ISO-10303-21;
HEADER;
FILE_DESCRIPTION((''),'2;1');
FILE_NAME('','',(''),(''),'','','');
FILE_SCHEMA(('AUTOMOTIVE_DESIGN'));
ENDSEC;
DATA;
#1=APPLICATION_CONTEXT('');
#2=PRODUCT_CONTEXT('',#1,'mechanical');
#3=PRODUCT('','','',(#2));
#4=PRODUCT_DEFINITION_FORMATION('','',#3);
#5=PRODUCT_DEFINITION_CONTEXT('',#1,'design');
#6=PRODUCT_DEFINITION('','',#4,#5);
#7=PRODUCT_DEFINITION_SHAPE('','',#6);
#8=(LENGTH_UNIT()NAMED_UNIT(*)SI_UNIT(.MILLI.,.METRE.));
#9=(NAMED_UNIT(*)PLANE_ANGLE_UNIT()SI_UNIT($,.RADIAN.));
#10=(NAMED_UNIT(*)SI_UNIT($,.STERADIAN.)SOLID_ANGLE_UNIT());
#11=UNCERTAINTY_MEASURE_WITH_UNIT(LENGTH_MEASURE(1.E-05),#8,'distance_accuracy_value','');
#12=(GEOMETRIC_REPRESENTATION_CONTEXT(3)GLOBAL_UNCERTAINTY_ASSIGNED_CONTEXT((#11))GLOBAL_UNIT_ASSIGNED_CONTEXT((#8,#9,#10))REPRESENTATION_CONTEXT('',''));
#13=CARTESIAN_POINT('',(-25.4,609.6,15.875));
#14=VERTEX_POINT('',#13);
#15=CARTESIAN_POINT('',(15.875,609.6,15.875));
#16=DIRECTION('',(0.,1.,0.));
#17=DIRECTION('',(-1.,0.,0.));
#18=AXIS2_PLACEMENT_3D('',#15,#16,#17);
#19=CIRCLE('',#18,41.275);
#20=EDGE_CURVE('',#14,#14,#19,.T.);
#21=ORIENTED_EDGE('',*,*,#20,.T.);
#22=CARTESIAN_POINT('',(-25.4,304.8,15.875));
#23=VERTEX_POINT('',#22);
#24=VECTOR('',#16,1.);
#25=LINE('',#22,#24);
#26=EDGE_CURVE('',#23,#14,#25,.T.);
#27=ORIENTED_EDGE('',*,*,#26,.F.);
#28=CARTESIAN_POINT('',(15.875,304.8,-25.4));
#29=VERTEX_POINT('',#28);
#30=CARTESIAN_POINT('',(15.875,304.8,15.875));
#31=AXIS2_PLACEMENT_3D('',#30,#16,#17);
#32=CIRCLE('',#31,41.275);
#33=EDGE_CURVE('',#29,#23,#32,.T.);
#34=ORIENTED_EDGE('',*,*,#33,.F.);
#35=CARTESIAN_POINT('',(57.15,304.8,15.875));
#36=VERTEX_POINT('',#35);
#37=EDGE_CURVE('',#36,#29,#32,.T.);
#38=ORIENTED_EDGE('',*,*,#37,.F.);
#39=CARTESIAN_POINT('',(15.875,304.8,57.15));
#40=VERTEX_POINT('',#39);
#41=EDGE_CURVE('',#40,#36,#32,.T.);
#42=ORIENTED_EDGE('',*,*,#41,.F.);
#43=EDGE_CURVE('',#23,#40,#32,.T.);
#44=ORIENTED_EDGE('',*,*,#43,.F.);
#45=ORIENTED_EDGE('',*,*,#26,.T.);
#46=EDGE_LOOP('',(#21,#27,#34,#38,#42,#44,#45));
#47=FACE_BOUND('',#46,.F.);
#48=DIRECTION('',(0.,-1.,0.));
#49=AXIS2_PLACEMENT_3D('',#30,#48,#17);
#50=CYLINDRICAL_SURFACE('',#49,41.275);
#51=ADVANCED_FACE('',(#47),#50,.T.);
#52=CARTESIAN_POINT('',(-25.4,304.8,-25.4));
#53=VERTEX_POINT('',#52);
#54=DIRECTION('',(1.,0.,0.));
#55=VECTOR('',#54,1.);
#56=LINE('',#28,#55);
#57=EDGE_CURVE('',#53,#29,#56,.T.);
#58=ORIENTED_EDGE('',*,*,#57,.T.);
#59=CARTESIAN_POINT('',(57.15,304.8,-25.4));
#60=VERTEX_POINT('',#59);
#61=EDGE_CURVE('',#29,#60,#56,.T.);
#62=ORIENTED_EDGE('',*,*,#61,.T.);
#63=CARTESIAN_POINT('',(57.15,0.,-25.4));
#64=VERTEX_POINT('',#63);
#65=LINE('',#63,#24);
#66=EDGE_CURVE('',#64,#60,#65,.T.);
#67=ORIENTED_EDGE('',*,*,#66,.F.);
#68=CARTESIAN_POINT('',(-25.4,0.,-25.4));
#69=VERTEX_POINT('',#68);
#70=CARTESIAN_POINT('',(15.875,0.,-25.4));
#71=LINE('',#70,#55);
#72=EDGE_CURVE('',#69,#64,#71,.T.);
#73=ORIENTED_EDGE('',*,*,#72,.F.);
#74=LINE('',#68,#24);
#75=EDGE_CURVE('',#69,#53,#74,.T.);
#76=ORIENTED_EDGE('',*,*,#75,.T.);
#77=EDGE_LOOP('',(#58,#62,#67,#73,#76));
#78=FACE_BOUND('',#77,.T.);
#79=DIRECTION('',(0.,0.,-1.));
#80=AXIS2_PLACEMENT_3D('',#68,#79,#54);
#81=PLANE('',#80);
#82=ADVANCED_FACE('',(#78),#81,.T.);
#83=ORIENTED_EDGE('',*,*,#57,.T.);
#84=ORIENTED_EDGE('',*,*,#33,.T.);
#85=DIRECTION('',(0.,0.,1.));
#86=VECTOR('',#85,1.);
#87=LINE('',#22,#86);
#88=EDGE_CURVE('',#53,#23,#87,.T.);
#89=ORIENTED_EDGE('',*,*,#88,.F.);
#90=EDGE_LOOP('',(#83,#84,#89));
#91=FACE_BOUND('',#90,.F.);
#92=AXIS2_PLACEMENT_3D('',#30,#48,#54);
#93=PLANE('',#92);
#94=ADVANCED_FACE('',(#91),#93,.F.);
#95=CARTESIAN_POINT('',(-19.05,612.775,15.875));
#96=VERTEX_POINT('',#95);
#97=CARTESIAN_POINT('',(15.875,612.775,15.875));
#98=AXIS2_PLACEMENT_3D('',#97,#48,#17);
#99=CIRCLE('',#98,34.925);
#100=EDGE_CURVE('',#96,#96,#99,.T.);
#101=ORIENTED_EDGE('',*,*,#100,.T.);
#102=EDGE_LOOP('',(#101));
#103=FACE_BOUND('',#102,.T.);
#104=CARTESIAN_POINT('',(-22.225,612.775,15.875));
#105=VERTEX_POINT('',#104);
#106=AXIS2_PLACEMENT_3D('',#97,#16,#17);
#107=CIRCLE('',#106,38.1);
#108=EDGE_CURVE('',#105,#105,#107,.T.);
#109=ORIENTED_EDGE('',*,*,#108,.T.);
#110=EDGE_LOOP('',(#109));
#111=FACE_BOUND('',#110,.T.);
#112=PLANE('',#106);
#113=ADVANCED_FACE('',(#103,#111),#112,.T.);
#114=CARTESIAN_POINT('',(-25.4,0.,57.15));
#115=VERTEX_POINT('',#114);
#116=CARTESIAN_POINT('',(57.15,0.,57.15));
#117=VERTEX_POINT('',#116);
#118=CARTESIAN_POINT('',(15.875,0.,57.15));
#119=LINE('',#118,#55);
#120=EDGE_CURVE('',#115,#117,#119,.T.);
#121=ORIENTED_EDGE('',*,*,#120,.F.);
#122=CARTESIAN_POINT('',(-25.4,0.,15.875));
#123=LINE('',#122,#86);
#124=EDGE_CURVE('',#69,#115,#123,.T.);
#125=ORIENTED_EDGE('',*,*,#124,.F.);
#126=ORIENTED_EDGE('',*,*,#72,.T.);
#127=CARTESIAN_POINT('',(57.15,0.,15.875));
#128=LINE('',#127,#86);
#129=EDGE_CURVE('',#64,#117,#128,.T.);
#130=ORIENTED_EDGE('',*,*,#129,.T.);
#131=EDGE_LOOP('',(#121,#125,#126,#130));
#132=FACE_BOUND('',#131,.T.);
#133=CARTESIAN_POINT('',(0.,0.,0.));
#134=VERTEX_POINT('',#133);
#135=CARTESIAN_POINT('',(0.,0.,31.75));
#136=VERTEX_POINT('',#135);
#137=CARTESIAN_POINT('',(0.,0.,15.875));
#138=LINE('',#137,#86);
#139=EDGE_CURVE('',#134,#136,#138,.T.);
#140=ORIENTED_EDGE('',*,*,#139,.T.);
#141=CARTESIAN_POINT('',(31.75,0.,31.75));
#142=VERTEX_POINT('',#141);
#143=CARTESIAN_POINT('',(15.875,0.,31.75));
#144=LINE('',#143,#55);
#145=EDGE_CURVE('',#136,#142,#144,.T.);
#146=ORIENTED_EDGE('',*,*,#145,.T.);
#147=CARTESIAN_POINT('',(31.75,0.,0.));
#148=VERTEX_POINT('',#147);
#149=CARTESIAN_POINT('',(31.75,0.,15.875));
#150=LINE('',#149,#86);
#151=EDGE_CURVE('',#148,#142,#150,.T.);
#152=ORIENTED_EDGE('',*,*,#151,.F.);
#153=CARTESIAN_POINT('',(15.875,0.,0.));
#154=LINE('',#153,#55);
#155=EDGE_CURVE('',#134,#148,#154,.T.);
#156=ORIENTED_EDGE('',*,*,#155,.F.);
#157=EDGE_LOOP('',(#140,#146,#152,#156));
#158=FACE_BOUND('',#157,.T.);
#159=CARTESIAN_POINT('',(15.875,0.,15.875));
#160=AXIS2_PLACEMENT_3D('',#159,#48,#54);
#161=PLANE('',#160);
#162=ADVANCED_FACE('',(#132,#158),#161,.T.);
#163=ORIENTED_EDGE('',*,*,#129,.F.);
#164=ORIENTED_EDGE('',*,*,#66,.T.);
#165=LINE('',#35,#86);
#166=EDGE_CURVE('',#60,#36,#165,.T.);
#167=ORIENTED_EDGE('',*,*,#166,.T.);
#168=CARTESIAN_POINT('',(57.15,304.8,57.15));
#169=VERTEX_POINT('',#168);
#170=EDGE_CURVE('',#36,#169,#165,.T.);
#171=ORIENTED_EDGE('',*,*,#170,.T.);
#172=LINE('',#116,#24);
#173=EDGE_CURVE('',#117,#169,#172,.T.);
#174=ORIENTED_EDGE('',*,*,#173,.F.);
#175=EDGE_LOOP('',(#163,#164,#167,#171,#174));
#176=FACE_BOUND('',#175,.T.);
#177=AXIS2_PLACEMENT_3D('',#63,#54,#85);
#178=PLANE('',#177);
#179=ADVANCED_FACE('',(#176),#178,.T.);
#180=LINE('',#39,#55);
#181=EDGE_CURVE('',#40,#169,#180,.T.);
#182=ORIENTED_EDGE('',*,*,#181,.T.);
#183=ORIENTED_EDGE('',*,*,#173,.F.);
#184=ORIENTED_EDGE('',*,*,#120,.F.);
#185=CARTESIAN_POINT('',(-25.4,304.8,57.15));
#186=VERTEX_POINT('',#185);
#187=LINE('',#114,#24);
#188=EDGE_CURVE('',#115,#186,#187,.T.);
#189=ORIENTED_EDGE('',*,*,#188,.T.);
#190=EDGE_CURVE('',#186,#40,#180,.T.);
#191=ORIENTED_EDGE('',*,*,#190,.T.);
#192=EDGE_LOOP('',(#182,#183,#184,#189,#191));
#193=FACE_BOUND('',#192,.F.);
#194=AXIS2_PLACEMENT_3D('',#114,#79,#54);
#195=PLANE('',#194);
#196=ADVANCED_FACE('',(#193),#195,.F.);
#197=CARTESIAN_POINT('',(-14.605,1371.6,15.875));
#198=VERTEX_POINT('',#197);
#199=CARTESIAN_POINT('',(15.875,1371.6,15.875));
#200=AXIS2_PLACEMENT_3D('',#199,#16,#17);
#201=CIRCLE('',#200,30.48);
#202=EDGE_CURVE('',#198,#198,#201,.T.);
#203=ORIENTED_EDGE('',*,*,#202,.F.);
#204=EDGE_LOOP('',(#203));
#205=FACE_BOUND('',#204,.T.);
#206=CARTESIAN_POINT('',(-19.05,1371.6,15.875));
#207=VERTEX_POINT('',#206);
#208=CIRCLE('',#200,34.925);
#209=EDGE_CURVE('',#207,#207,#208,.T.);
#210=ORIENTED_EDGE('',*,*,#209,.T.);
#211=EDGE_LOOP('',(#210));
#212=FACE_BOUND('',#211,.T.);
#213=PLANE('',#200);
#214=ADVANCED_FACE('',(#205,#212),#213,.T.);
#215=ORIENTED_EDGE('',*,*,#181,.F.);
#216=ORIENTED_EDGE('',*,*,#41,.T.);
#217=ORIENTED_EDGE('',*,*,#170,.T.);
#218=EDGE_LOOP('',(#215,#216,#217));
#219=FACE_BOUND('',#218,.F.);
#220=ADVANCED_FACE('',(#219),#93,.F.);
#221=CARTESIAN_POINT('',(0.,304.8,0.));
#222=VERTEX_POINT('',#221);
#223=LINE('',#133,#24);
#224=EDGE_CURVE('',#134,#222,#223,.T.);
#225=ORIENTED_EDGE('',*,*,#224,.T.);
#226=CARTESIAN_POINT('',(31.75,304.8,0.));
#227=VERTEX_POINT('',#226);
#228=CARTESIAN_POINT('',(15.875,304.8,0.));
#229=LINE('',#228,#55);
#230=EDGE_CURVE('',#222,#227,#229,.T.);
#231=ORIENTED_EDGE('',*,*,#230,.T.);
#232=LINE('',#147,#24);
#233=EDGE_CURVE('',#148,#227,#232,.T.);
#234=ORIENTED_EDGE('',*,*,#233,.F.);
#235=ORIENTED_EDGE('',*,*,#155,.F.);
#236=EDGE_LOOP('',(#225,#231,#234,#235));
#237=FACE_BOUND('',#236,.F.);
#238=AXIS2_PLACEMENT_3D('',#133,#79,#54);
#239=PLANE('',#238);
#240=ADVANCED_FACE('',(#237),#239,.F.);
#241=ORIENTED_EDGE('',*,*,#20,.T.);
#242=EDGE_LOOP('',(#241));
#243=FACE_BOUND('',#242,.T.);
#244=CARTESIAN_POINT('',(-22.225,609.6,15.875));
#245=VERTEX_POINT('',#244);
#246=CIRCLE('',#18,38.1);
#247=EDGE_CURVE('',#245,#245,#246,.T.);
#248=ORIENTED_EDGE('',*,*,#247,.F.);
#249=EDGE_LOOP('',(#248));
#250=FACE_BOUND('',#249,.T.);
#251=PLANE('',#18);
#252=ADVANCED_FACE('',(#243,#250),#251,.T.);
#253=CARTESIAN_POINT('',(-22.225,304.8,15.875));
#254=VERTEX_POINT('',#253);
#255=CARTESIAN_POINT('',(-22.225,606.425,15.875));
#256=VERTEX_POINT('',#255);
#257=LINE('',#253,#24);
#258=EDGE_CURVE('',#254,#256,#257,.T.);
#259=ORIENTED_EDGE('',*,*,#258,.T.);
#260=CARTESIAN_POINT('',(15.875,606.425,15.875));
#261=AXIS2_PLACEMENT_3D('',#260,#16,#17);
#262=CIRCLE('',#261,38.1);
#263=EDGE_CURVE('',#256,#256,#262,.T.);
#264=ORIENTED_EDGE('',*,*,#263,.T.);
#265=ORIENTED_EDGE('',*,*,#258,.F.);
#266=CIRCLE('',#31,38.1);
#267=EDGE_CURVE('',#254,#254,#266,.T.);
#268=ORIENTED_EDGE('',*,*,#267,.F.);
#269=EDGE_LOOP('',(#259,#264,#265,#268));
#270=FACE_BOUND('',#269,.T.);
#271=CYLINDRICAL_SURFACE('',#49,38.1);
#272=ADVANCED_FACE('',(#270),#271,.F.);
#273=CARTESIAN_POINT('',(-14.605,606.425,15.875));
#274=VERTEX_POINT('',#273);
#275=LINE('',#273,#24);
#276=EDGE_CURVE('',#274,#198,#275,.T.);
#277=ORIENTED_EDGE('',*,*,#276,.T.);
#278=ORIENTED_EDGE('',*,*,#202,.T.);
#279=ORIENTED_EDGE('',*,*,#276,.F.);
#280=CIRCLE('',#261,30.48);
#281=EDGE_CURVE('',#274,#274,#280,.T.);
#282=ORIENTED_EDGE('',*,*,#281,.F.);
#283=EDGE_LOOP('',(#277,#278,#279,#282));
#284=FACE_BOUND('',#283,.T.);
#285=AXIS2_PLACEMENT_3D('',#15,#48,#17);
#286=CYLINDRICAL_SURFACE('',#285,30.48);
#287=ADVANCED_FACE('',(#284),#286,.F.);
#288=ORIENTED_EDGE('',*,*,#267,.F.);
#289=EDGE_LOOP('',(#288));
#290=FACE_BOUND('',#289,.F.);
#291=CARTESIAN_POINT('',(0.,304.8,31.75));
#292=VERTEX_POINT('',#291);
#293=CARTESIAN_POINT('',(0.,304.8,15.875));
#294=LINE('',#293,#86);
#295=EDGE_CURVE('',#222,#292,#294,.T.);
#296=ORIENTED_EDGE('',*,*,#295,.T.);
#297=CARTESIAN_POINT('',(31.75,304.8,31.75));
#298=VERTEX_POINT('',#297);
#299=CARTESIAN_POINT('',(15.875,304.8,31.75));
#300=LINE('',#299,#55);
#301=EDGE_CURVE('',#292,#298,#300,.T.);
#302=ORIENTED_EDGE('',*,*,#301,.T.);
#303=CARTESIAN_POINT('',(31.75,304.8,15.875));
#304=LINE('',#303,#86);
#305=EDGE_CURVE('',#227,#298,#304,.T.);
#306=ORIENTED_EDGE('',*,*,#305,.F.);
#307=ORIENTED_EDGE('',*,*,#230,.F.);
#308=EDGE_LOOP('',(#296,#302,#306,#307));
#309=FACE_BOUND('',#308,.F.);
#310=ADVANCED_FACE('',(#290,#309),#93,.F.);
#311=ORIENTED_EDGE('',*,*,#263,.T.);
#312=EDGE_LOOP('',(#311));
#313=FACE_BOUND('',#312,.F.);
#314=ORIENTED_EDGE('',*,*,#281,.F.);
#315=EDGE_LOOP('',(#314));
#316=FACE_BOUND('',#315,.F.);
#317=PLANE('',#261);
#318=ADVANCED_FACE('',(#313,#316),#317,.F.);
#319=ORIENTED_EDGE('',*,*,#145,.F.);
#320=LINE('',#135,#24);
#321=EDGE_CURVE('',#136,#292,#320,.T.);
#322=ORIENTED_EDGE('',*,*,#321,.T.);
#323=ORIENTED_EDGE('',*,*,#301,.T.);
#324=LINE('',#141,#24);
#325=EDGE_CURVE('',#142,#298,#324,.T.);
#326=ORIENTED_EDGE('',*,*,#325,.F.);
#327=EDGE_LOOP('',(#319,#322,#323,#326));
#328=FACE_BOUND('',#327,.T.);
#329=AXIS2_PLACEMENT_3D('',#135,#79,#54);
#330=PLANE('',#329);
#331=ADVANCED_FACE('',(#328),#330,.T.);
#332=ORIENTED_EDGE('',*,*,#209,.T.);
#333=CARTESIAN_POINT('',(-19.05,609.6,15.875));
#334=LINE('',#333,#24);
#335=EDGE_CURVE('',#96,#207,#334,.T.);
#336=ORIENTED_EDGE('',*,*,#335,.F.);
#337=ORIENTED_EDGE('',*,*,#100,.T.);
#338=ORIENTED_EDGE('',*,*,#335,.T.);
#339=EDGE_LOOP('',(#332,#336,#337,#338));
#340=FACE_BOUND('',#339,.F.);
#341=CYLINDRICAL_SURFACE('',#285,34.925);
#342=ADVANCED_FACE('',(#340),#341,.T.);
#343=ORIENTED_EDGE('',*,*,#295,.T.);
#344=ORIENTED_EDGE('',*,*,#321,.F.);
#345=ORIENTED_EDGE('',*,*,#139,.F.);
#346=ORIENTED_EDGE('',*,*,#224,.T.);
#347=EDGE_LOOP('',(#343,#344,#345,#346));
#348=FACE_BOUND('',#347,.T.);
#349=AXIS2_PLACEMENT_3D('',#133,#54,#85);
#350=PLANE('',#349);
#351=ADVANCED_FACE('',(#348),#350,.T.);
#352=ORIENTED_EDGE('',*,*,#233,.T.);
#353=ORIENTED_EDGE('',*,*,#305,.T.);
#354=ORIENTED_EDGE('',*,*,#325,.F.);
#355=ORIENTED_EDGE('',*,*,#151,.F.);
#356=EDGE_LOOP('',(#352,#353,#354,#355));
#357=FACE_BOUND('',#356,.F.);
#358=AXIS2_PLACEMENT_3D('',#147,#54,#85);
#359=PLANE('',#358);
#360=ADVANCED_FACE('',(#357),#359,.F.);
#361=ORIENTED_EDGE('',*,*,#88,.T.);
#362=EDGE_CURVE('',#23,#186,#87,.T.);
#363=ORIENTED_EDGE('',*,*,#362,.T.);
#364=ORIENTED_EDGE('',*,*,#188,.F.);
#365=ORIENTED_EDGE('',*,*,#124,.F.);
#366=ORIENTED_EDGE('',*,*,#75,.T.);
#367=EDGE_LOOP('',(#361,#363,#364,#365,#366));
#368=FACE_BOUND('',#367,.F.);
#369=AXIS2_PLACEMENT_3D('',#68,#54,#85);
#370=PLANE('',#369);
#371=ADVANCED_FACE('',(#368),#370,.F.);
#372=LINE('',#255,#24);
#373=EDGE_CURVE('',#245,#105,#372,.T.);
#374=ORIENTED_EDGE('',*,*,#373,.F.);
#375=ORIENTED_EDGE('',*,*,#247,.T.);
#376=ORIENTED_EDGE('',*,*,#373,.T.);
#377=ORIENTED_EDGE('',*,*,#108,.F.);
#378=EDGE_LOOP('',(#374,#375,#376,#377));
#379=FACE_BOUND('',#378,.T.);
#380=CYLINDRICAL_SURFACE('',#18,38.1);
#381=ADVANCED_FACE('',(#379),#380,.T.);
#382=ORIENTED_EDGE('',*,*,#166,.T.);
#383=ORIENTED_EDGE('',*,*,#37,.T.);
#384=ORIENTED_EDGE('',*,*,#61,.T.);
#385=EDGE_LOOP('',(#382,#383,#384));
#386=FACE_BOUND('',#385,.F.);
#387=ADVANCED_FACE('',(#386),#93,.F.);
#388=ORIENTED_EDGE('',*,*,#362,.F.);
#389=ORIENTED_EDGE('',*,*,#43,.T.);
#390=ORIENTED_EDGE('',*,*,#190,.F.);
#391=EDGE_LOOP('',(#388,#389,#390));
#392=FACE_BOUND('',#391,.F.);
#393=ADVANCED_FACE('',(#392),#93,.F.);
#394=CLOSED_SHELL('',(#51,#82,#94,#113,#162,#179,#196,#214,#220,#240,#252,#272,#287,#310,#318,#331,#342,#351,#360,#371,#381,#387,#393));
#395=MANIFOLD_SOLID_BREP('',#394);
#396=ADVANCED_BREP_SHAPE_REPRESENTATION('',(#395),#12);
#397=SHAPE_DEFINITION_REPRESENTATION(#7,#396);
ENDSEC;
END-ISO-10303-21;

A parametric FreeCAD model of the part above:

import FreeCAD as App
import Part
import Sketcher
Q = App.Units.Quantity

doc = App.newDocument("Part")
params = doc.addObject("Spreadsheet::Sheet", "Params")
for row, (alias, value) in enumerate([
    ("sketch1_width", "3.25 in"),
    ("pad1_length", "12 in"),
    ("sketch2_diameter", "3 in"),
    ("sketch2_diameter2", "3.25 in"),
    ("pad2_length", "12 in"),
    ("sketch3_diameter", "2.4 in"),
    ("sketch3_diameter2", "2.75 in"),
    ("pad3_length", "30 in"),
    ("sketch4_diameter", "3 in"),
    ("sketch4_diameter2", "2.4 in"),
    ("pad4_length", "0.25 in"),
], start=1):
    params.set(f"A{row}", alias)
    params.set(f"B{row}", "=" + value)
    params.setAlias(f"B{row}", alias)

body = doc.addObject("PartDesign::Body", "Body")

sketch1 = doc.addObject("Sketcher::SketchObject", "Sketch")
body.addObject(sketch1)
sketch1.AttachmentSupport = (doc.XZ_Plane, [""])
sketch1.MapMode = "FlatFace"
sketch1.addGeometry([
    Part.LineSegment(App.Vector(-25.4, 57.15, 0), App.Vector(-25.4, -25.4, 0)),
    Part.LineSegment(App.Vector(-25.4, -25.4, 0), App.Vector(57.15, -25.4, 0)),
    Part.LineSegment(App.Vector(57.15, -25.4, 0), App.Vector(57.15, 57.15, 0)),
    Part.LineSegment(App.Vector(57.15, 57.15, 0), App.Vector(-25.4, 57.15, 0)),
    Part.LineSegment(App.Vector(31.75, 0, 0), App.Vector(0, 0, 0)),
    Part.LineSegment(App.Vector(0, 0, 0), App.Vector(0, 31.75, 0)),
    Part.LineSegment(App.Vector(0, 31.75, 0), App.Vector(31.75, 31.75, 0)),
    Part.LineSegment(App.Vector(31.75, 31.75, 0), App.Vector(31.75, 0, 0)),
], False)
sketch1.addConstraint([
    Sketcher.Constraint("Coincident", 0, 2, 1, 1),
    Sketcher.Constraint("Coincident", 1, 2, 2, 1),
    Sketcher.Constraint("Coincident", 2, 2, 3, 1),
    Sketcher.Constraint("Coincident", 3, 2, 0, 1),
    Sketcher.Constraint("Coincident", 4, 2, 5, 1),
    Sketcher.Constraint("Coincident", 5, 2, 6, 1),
    Sketcher.Constraint("Coincident", 6, 2, 7, 1),
    Sketcher.Constraint("Coincident", 7, 2, 4, 1),
    Sketcher.Constraint("Vertical", 0),
    Sketcher.Constraint("Horizontal", 1),
    Sketcher.Constraint("Vertical", 2),
    Sketcher.Constraint("Horizontal", 3),
    Sketcher.Constraint("Horizontal", 4),
    Sketcher.Constraint("Vertical", 5),
    Sketcher.Constraint("Horizontal", 6),
    Sketcher.Constraint("Vertical", 7),
    Sketcher.Constraint("Coincident", 4, 2, -1, 1),
    Sketcher.Constraint("Equal", 3, 0),
    Sketcher.Constraint("Equal", 6, 5),
    Sketcher.Constraint("DistanceX", 0, 2, -1, 1, Q("1 in")),
    Sketcher.Constraint("DistanceY", 0, 2, -1, 1, Q("1 in")),
    Sketcher.Constraint("DistanceY", 5, 2, 3, 2, Q("1 in")),
    Sketcher.Constraint("DistanceX", 1, 1, 1, 2, Q("3.25 in")),
])
sketch1.setExpression("Constraints[22]", "Params.sketch1_width")
pad1 = doc.addObject("PartDesign::Pad", "Pad")
body.addObject(pad1)
pad1.Profile = sketch1
pad1.setExpression("Length", "Params.pad1_length")
pad1.Reversed = True

sketch2 = doc.addObject("Sketcher::SketchObject", "Sketch001")
body.addObject(sketch2)
sketch2.AttachmentSupport = (doc.XZ_Plane, [""])
sketch2.MapMode = "FlatFace"
sketch2.AttachmentOffset = App.Placement(App.Vector(0, 0, -12 * 25.4), App.Rotation())
sketch2.addGeometry([
    Part.Circle(App.Vector(15.875, 15.875, 0), App.Vector(0, 0, 1), 41.275),
    Part.Circle(App.Vector(15.875, 15.875, 0), App.Vector(0, 0, 1), 38.1),
], False)
sketch2.addConstraint([
    Sketcher.Constraint("Coincident", 1, 3, 0, 3),
    Sketcher.Constraint("Diameter", 1, Q("3 in")),
    Sketcher.Constraint("Diameter", 0, Q("3.25 in")),
    Sketcher.Constraint("DistanceX", -1, 1, 0, 3, Q("0.625 in")),
    Sketcher.Constraint("DistanceY", -1, 1, 0, 3, Q("0.625 in")),
])
sketch2.setExpression("Constraints[1]", "Params.sketch2_diameter")
sketch2.setExpression("Constraints[2]", "Params.sketch2_diameter2")
pad2 = doc.addObject("PartDesign::Pad", "Pad001")
body.addObject(pad2)
pad2.Profile = sketch2
pad2.setExpression("Length", "Params.pad2_length")
pad2.Reversed = True
body2 = doc.addObject("PartDesign::Body", "Body001")

sketch3 = doc.addObject("Sketcher::SketchObject", "Sketch002")
body2.addObject(sketch3)
sketch3.AttachmentSupport = (doc.getObject("XZ_Plane001"), [""])
sketch3.MapMode = "FlatFace"
sketch3.AttachmentOffset = App.Placement(App.Vector(0, 0, -24 * 25.4), App.Rotation())
sketch3.addGeometry([
    Part.Circle(App.Vector(15.875, 15.875, 0), App.Vector(0, 0, 1), 34.925),
    Part.Circle(App.Vector(15.875, 15.875, 0), App.Vector(0, 0, 1), 30.48),
], False)
sketch3.addConstraint([
    Sketcher.Constraint("Coincident", 1, 3, 0, 3),
    Sketcher.Constraint("Diameter", 1, Q("2.4 in")),
    Sketcher.Constraint("Diameter", 0, Q("2.75 in")),
    Sketcher.Constraint("DistanceX", -1, 1, 0, 3, Q("0.625 in")),
    Sketcher.Constraint("DistanceY", -1, 1, 0, 3, Q("0.625 in")),
])
sketch3.setExpression("Constraints[1]", "Params.sketch3_diameter")
sketch3.setExpression("Constraints[2]", "Params.sketch3_diameter2")
pad3 = doc.addObject("PartDesign::Pad", "Pad002")
body2.addObject(pad3)
pad3.Profile = sketch3
pad3.setExpression("Length", "Params.pad3_length")
pad3.Reversed = True
body.AllowCompound = True
doc.recompute()

boolean = doc.addObject("PartDesign::Boolean", "Boolean")
body.addObject(boolean)
boolean.Type = "Fuse"
boolean.addObjects([body2])

sketch4 = doc.addObject("Sketcher::SketchObject", "Sketch003")
body.addObject(sketch4)
sketch4.AttachmentSupport = (doc.XZ_Plane, [""])
sketch4.MapMode = "FlatFace"
sketch4.AttachmentOffset = App.Placement(App.Vector(0, 0, -24 * 25.4), App.Rotation())
sketch4.addGeometry([
    Part.Circle(App.Vector(15.875, 15.875, 0), App.Vector(0, 0, 1), 38.1),
    Part.Circle(App.Vector(15.875, 15.875, 0), App.Vector(0, 0, 1), 30.48),
], False)
sketch4.addConstraint([
    Sketcher.Constraint("Coincident", 1, 3, 0, 3),
    Sketcher.Constraint("Diameter", 0, Q("3 in")),
    Sketcher.Constraint("Diameter", 1, Q("2.4 in")),
    Sketcher.Constraint("DistanceX", -1, 1, 0, 3, Q("0.625 in")),
    Sketcher.Constraint("DistanceY", -1, 1, 0, 3, Q("0.625 in")),
])
sketch4.setExpression("Constraints[1]", "Params.sketch4_diameter")
sketch4.setExpression("Constraints[2]", "Params.sketch4_diameter2")
pad4 = doc.addObject("PartDesign::Pad", "Pad003")
body.addObject(pad4)
pad4.Profile = sketch4
pad4.setExpression("Length", "Params.pad4_length")
pad4.Midplane = True

doc.recompute()
